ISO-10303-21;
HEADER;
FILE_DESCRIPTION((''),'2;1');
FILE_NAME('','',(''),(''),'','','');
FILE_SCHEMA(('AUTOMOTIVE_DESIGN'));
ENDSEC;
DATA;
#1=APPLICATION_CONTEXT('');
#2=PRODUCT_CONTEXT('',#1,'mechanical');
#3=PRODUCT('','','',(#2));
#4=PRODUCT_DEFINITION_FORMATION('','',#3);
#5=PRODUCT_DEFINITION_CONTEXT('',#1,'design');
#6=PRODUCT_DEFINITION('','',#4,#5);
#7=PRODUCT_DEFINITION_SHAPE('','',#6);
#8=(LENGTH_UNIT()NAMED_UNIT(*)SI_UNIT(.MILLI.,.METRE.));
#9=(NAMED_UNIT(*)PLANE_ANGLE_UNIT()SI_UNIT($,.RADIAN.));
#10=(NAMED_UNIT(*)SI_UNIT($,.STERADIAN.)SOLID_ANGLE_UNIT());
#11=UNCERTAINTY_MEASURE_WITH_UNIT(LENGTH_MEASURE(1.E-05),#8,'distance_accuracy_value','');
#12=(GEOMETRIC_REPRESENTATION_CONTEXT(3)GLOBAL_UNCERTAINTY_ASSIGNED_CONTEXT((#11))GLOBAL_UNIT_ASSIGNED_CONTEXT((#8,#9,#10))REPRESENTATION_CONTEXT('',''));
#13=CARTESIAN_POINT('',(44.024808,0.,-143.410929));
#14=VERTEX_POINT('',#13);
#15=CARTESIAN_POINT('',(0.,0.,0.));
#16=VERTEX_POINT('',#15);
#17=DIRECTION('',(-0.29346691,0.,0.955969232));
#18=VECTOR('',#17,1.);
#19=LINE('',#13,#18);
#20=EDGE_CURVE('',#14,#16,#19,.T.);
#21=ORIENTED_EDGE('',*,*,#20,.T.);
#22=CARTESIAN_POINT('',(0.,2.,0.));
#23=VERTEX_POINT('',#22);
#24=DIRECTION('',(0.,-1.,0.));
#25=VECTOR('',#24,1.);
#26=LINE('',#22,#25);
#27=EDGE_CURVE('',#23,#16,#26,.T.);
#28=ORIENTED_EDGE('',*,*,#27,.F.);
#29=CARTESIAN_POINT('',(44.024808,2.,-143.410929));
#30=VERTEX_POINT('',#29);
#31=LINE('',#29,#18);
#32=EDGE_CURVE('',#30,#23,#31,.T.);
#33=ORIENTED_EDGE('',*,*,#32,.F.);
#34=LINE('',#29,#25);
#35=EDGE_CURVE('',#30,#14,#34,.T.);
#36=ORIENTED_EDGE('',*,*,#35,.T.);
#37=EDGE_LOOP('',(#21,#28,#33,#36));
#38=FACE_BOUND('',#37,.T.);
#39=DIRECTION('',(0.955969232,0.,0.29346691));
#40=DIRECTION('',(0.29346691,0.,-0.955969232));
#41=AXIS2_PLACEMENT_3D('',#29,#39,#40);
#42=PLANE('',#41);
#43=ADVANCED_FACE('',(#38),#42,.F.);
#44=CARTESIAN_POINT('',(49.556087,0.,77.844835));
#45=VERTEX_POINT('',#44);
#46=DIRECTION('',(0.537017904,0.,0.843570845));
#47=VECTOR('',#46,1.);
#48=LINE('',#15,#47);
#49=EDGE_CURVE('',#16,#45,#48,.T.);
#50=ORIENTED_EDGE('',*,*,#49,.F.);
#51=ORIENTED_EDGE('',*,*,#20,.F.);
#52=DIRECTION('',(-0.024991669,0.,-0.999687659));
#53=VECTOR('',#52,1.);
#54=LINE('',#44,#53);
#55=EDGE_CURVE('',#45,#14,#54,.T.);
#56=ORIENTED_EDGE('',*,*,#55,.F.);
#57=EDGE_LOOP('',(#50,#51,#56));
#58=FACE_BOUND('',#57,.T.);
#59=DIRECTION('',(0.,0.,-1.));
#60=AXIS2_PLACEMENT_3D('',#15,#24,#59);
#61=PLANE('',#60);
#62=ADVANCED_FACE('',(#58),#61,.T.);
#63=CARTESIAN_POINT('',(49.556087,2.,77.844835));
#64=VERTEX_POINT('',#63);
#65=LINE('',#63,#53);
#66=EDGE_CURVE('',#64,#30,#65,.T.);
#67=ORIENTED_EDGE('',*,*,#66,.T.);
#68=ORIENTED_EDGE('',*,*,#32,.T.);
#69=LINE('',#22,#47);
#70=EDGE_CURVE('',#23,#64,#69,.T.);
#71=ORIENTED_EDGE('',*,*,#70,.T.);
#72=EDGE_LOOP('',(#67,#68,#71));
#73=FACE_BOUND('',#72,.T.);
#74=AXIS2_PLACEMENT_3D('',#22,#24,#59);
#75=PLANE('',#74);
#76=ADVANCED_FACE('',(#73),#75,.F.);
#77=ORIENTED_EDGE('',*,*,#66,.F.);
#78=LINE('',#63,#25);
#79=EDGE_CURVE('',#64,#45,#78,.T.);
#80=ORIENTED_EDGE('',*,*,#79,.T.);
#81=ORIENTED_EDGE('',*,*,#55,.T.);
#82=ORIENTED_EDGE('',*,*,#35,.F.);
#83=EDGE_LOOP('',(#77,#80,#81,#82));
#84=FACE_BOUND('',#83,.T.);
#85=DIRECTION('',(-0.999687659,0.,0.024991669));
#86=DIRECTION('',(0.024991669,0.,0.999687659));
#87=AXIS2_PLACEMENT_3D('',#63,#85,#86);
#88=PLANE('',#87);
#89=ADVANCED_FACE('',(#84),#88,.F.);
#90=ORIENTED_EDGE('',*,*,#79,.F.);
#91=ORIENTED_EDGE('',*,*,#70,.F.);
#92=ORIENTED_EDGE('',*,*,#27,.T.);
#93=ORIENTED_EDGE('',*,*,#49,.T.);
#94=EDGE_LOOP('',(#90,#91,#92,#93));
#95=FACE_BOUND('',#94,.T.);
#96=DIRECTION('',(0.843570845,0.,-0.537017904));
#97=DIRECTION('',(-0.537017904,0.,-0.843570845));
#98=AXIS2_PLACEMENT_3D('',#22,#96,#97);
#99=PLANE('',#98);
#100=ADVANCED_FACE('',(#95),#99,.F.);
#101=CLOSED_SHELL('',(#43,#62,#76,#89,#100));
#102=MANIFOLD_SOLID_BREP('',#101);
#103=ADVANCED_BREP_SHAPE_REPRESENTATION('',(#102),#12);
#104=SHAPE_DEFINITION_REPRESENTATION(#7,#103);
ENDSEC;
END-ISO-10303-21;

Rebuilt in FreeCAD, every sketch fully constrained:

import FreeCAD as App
import Part
import Sketcher
from FreeCAD import Vector


def add_polygon(sketch, points):
    """Adds a closed chain of lines whose ends are joined by coincident constraints."""
    first, n = sketch.GeometryCount, len(points)
    for a, b in zip(points, points[1:] + points[:1]):
        sketch.addGeometry(Part.LineSegment(App.Vector(*a, 0), App.Vector(*b, 0)), False)
    for i in range(n):
        sketch.addConstraint(Sketcher.Constraint("Coincident", first + i, 2, first + (i + 1) % n, 1))

doc = App.newDocument("Part")
body = doc.addObject("PartDesign::Body", "Body")

sketch1 = body.newObject("Sketcher::SketchObject", "Sketch")
sketch1.AttachmentSupport = (doc.getObject("XZ_Plane"), [""])
sketch1.MapMode = "FlatFace"
add_polygon(sketch1, [(44, -143), (0, 0), (50, 78)])
sketch1.addConstraint(Sketcher.Constraint("Coincident", 0, 2, -1, 1))
sketch1.addConstraint(Sketcher.Constraint("Distance", 0, 150.01626))
sketch1.addConstraint(Sketcher.Constraint("Distance", 1, 92.280139))
sketch1.addConstraint(Sketcher.Constraint("DistanceX", -1, 1, 2, 2, 44.024808))
sketch1.addConstraint(Sketcher.Constraint("DistanceX", 2, 2, 1, 2, 5.531278))
pad1 = body.newObject("PartDesign::Pad", "Pad")
pad1.Profile = sketch1
pad1.Length = 2
pad1.Reversed = True

doc.recompute()
